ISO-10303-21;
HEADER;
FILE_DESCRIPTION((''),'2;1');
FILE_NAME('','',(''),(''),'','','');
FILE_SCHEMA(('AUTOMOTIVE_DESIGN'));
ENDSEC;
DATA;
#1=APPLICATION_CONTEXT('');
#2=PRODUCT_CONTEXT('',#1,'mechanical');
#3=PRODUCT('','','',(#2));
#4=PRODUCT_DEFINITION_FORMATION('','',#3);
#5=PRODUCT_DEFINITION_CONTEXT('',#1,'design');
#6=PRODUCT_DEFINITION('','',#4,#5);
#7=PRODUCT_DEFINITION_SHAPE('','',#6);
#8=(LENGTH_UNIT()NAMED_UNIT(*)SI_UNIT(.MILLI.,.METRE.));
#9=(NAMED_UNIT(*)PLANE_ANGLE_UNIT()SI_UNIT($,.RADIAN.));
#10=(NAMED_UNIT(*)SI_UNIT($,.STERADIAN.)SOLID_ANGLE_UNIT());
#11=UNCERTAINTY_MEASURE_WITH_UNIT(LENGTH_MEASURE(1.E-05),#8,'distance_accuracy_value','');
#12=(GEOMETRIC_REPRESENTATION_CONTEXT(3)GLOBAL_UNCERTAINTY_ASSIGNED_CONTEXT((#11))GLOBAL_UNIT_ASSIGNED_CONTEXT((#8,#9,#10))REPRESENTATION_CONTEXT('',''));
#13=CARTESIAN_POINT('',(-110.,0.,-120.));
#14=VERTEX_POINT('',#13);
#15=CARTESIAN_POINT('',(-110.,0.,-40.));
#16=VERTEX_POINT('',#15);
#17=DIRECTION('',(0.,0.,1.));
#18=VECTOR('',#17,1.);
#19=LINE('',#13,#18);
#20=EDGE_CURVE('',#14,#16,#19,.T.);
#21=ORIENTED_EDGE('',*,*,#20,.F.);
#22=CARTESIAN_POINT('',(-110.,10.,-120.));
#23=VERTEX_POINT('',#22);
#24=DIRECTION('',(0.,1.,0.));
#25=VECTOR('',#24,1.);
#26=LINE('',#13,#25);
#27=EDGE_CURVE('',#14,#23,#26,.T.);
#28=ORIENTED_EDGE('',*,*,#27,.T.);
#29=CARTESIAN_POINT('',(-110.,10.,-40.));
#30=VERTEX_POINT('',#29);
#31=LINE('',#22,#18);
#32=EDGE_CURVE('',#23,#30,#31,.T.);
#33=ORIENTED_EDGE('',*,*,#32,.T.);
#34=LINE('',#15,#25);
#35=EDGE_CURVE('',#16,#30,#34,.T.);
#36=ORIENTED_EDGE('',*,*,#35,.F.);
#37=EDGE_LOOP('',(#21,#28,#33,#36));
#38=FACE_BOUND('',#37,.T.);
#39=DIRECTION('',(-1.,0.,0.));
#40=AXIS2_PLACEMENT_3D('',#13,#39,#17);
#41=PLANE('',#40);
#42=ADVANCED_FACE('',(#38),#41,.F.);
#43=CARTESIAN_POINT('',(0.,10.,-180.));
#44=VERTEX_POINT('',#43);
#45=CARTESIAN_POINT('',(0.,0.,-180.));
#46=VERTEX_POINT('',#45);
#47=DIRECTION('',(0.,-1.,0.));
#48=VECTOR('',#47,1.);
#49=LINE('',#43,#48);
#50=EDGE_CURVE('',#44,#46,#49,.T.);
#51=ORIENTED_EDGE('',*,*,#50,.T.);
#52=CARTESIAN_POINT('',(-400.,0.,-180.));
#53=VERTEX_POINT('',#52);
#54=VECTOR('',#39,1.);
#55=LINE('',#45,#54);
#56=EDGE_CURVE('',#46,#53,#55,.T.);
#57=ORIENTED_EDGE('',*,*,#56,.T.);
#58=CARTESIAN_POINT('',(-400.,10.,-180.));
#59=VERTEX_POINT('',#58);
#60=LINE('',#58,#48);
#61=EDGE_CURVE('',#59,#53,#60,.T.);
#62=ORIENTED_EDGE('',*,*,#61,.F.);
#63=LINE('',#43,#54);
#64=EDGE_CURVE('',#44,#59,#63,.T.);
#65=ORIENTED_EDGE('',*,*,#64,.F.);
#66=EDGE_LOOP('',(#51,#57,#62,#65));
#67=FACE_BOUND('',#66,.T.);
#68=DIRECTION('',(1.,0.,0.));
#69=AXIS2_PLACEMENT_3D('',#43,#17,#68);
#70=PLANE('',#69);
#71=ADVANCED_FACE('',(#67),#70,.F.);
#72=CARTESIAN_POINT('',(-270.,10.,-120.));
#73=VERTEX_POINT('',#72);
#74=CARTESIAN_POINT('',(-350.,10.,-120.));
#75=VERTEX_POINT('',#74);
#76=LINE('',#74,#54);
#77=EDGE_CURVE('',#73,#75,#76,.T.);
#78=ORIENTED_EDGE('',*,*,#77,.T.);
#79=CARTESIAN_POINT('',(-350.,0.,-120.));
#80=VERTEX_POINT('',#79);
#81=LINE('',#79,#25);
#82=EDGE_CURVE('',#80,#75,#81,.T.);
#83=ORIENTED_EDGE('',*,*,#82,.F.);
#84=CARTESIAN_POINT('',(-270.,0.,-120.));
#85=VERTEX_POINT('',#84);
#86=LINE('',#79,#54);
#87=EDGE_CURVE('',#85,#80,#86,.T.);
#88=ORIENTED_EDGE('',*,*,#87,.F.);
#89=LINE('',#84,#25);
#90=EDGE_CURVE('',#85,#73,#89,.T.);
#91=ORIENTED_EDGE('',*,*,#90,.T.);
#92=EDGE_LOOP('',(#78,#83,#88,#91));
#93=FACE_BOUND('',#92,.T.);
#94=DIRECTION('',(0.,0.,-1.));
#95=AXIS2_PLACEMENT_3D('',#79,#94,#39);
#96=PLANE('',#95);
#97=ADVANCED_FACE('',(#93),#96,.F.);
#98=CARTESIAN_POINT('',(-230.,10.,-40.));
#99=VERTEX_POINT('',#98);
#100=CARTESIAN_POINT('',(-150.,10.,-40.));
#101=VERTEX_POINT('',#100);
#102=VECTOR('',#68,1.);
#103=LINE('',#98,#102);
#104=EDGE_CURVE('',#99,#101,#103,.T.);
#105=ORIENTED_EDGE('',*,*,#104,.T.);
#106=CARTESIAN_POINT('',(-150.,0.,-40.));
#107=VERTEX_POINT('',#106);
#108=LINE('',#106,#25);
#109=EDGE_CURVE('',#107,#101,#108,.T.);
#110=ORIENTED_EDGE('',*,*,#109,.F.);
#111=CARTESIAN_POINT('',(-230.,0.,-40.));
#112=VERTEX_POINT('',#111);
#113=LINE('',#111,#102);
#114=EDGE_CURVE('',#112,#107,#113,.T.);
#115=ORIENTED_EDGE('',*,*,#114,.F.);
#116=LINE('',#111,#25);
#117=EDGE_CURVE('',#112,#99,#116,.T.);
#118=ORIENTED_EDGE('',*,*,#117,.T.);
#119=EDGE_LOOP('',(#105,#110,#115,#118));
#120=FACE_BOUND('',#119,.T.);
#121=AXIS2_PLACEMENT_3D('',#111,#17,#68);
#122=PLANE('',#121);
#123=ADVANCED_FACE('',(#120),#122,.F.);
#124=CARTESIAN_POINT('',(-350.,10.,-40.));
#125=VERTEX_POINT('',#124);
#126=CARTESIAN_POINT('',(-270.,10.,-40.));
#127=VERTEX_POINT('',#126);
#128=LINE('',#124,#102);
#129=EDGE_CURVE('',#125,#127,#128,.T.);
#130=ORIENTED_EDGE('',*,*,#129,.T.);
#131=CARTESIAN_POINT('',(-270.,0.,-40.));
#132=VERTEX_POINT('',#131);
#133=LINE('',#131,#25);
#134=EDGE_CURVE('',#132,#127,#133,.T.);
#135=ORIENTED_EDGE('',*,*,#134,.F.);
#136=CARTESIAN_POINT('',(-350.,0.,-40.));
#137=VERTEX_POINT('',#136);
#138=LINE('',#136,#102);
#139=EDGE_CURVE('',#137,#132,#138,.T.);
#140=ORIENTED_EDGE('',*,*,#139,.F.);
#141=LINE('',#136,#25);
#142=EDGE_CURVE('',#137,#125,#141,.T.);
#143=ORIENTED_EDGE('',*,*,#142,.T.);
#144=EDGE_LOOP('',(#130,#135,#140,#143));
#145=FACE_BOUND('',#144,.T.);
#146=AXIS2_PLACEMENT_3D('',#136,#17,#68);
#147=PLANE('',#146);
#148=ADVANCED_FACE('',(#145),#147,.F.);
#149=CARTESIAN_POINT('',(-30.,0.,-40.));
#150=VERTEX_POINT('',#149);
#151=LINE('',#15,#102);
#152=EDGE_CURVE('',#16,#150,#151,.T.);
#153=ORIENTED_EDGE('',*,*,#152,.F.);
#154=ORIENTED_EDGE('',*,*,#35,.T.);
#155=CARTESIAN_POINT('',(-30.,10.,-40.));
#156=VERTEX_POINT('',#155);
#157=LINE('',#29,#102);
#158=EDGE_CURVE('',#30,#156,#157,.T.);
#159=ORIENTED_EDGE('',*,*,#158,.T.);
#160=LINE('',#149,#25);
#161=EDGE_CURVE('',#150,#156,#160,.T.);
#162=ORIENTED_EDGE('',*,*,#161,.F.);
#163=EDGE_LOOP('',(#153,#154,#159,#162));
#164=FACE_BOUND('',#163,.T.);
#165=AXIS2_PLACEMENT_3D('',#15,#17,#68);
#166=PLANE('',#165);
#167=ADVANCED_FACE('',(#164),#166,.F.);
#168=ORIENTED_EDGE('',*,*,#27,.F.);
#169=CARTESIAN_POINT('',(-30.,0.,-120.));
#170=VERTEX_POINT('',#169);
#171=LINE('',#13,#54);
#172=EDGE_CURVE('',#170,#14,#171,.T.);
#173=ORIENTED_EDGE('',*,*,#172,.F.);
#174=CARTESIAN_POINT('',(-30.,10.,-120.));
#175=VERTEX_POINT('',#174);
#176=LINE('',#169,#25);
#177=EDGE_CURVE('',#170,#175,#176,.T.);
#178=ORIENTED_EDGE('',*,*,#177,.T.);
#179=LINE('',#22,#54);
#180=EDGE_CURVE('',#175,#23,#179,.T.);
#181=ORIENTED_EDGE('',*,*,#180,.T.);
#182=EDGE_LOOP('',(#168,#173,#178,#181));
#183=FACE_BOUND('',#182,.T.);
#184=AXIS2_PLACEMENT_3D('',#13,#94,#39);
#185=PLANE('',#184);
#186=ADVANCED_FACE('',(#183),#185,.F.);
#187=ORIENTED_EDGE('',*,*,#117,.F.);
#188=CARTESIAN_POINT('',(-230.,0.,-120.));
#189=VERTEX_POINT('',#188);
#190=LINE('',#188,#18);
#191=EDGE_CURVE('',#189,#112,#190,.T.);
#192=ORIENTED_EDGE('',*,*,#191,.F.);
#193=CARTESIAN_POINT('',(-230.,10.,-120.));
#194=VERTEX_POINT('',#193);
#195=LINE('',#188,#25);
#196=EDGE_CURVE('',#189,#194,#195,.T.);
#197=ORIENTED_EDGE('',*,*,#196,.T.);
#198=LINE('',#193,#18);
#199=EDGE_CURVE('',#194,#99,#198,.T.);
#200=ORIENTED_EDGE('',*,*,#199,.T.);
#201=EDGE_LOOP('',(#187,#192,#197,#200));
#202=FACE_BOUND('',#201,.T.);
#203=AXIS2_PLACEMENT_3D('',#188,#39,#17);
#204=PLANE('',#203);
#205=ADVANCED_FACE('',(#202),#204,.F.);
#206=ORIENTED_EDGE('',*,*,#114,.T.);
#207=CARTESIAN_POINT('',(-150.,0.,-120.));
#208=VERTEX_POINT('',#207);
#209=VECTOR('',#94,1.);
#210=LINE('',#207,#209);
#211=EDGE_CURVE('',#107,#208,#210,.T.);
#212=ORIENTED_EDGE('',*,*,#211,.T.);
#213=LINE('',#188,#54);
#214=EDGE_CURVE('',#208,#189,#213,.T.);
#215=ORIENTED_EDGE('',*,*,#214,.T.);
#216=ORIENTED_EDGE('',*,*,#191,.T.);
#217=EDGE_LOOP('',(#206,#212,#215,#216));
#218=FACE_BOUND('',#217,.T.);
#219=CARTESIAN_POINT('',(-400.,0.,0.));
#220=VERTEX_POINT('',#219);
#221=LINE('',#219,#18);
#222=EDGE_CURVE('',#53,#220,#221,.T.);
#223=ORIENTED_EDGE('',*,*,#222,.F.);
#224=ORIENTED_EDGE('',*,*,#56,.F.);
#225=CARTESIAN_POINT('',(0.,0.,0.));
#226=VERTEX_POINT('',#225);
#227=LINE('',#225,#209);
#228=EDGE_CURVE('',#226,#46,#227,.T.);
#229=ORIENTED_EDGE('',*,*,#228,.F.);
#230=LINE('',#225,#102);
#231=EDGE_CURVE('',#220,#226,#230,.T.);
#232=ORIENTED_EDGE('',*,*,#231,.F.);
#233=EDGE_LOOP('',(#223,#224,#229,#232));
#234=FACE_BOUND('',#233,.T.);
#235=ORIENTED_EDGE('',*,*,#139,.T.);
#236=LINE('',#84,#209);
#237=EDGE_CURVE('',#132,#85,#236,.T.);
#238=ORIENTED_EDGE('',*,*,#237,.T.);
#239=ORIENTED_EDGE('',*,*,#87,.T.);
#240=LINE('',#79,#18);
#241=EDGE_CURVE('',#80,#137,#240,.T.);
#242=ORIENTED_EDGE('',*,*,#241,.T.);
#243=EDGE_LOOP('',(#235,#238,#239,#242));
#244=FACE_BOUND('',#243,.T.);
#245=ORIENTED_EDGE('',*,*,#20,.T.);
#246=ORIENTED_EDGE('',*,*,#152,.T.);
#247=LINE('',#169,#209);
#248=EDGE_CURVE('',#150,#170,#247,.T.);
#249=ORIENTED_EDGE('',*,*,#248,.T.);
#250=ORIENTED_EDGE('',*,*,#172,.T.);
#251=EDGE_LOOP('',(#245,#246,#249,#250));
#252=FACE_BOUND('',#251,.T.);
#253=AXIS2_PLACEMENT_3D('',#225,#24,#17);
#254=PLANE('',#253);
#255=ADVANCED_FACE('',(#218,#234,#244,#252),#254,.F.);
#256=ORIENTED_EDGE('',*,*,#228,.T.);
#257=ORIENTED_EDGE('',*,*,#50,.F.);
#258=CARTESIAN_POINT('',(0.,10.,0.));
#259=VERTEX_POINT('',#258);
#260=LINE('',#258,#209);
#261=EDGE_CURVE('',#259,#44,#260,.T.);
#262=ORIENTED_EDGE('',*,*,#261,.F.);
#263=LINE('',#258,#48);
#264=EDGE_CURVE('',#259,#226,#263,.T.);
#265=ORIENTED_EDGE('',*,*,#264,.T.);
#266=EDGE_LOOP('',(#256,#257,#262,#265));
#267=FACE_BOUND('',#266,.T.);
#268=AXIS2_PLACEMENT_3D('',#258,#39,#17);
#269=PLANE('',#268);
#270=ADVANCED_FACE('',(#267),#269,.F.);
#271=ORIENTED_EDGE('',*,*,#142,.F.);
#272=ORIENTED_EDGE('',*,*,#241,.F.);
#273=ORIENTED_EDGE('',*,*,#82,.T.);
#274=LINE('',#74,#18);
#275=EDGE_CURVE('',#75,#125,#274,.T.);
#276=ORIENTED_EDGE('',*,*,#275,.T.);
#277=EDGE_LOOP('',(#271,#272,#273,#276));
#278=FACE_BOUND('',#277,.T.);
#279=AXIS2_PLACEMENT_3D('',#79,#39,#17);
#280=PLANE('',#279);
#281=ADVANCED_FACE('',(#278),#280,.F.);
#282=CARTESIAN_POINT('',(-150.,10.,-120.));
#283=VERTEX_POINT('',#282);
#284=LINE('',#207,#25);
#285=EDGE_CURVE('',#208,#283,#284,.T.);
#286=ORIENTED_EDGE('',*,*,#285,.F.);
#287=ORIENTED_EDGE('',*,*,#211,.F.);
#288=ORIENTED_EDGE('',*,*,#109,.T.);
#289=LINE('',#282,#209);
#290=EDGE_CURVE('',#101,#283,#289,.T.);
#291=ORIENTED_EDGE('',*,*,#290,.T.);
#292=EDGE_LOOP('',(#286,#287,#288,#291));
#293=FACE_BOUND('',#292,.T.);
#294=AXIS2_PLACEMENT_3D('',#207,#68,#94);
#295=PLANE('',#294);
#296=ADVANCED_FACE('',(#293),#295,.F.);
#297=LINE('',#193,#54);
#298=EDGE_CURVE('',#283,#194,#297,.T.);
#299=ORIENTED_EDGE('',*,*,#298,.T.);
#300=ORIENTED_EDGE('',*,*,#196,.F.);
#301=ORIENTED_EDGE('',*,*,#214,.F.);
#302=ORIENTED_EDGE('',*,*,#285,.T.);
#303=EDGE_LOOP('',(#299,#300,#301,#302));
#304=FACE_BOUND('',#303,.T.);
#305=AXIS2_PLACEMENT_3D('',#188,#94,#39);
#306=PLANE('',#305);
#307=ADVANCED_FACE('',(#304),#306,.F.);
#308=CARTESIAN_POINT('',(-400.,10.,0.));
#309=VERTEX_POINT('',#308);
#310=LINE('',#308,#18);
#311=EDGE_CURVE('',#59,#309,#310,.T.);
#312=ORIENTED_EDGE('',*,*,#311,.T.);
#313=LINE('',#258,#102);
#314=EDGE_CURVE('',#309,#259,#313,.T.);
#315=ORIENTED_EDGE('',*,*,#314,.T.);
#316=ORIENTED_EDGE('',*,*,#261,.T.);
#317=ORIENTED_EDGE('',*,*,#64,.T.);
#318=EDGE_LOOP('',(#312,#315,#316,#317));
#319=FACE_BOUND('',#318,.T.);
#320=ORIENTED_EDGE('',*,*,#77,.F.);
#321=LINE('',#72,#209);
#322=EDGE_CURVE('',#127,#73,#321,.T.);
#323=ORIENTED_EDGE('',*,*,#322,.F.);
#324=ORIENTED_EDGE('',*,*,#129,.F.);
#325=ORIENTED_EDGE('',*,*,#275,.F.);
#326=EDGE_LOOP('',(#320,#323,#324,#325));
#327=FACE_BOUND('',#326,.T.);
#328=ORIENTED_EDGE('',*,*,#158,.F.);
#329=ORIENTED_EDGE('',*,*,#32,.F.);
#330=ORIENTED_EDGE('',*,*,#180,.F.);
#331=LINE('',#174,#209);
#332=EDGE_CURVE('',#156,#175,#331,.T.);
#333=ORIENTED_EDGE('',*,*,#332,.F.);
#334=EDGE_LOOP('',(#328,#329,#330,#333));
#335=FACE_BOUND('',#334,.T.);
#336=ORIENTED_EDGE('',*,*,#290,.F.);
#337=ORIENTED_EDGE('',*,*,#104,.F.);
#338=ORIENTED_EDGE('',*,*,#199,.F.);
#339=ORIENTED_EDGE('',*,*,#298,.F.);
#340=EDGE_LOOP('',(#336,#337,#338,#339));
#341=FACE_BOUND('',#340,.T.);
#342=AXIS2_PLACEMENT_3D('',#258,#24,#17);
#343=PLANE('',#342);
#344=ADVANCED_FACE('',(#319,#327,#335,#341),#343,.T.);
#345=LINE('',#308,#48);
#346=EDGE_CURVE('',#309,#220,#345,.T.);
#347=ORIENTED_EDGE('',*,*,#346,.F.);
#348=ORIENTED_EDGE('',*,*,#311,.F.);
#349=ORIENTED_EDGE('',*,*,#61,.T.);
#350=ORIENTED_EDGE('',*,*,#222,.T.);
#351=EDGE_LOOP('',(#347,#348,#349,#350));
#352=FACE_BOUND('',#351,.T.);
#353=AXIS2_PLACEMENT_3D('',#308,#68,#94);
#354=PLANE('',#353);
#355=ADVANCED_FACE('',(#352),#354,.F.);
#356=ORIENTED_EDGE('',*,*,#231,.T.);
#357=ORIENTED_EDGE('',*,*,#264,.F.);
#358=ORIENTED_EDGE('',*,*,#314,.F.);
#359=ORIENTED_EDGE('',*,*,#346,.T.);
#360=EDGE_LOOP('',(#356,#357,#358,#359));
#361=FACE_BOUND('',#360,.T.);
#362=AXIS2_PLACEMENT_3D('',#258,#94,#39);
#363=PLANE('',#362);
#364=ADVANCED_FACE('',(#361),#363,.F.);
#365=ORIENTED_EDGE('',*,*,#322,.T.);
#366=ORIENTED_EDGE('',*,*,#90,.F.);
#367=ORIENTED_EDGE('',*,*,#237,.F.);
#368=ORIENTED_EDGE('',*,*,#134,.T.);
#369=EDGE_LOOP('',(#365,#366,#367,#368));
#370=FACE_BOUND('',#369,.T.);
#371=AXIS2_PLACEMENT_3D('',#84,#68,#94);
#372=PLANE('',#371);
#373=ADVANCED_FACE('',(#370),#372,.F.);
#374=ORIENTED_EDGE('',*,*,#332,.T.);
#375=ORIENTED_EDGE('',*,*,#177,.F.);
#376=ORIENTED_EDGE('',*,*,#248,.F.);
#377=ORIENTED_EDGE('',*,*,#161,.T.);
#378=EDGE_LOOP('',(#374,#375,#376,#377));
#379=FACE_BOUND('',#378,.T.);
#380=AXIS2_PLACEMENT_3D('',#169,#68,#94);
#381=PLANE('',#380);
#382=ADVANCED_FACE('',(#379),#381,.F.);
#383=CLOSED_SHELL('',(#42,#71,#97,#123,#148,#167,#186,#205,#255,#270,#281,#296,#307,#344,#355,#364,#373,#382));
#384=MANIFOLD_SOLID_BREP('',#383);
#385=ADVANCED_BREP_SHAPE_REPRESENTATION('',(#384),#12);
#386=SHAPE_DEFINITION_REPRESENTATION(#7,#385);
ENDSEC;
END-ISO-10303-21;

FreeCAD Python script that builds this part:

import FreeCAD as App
import Part
import Sketcher
from FreeCAD import Vector
Q = App.Units.Quantity


def add_polygon(sketch, points):
    """Adds a closed chain of lines whose ends are joined by coincident constraints."""
    first, n = sketch.GeometryCount, len(points)
    for a, b in zip(points, points[1:] + points[:1]):
        sketch.addGeometry(Part.LineSegment(App.Vector(*a, 0), App.Vector(*b, 0)), False)
    for i in range(n):
        sketch.addConstraint(Sketcher.Constraint("Coincident", first + i, 2, first + (i + 1) % n, 1))

doc = App.newDocument("Part")
body = doc.addObject("PartDesign::Body", "Body")

# Sketch on XZ plane
sketch1 = body.newObject("Sketcher::SketchObject", "Sketch")
sketch1.AttachmentSupport = (doc.getObject("XZ_Plane"), [""])
sketch1.MapMode = "FlatFace"
add_polygon(sketch1, [(-400, -180), (-400, 0), (0, 0), (0, -180)])  # lines 0-3
sketch1.addConstraint([
    Sketcher.Constraint("Vertical", 0),
    Sketcher.Constraint("Horizontal", 1),
    Sketcher.Constraint("Vertical", 2),
    Sketcher.Constraint("Horizontal", 3),
    Sketcher.Constraint("Coincident", 1, 2, -1, 1),
    Sketcher.Constraint("DistanceX", 1, 1, 1, 2, Q("400 mm")),
    Sketcher.Constraint("DistanceY", 0, 1, 0, 2, Q("180 mm")),
])
pad1 = body.newObject("PartDesign::Pad", "Pad")
pad1.Profile = sketch1
pad1.Length = 10
pad1.Reversed = True

# Sketch on XZ plane
sketch2 = body.newObject("Sketcher::SketchObject", "Sketch001")
sketch2.AttachmentSupport = (doc.getObject("XZ_Plane"), [""])
sketch2.MapMode = "FlatFace"
sketch2.AttachmentOffset = App.Placement(Vector(0, 0, -10), App.Rotation())
add_polygon(sketch2, [(-350, -120), (-350, -40), (-270, -40), (-270, -120)])  # lines 0-3
add_polygon(sketch2, [(-230, -120), (-230, -40), (-150, -40), (-150, -120)])  # lines 4-7
add_polygon(sketch2, [(-110, -120), (-110, -40), (-30, -40), (-30, -120)])  # lines 8-11
sketch2.addConstraint([
    Sketcher.Constraint("Vertical", 0),
    Sketcher.Constraint("Horizontal", 1),
    Sketcher.Constraint("Vertical", 2),
    Sketcher.Constraint("Horizontal", 3),
    Sketcher.Constraint("Vertical", 4),
    Sketcher.Constraint("Horizontal", 5),
    Sketcher.Constraint("Vertical", 6),
    Sketcher.Constraint("Horizontal", 7),
    Sketcher.Constraint("Vertical", 8),
    Sketcher.Constraint("Horizontal", 9),
    Sketcher.Constraint("Vertical", 10),
    Sketcher.Constraint("Horizontal", 11),
    Sketcher.Constraint("Horizontal", 1, 2, 4, 2),
    Sketcher.Constraint("Horizontal", 3, 2, 6, 2),
    Sketcher.Constraint("Horizontal", 5, 2, 8, 2),
    Sketcher.Constraint("Horizontal", 7, 2, 10, 2),
    Sketcher.Constraint("Equal", 3, 5),
    Sketcher.Constraint("Equal", 7, 9),
    Sketcher.Constraint("Equal", 11, 0),
    Sketcher.Constraint("DistanceX", 1, 1, 1, 2, Q("80 mm")),
    Sketcher.Constraint("DistanceX", 0, 2, -1, 1, Q("350 mm")),
    Sketcher.Constraint("DistanceY", 0, 2, -1, 1, Q("40 mm")),
    Sketcher.Constraint("DistanceX", 4, 2, -1, 1, Q("230 mm")),
    Sketcher.Constraint("DistanceX", 8, 2, -1, 1, Q("110 mm")),
])
pocket1 = body.newObject("PartDesign::Pocket", "Pocket")
pocket1.Profile = sketch2
pocket1.Length = 10
pocket1.Reversed = True

doc.recompute()
